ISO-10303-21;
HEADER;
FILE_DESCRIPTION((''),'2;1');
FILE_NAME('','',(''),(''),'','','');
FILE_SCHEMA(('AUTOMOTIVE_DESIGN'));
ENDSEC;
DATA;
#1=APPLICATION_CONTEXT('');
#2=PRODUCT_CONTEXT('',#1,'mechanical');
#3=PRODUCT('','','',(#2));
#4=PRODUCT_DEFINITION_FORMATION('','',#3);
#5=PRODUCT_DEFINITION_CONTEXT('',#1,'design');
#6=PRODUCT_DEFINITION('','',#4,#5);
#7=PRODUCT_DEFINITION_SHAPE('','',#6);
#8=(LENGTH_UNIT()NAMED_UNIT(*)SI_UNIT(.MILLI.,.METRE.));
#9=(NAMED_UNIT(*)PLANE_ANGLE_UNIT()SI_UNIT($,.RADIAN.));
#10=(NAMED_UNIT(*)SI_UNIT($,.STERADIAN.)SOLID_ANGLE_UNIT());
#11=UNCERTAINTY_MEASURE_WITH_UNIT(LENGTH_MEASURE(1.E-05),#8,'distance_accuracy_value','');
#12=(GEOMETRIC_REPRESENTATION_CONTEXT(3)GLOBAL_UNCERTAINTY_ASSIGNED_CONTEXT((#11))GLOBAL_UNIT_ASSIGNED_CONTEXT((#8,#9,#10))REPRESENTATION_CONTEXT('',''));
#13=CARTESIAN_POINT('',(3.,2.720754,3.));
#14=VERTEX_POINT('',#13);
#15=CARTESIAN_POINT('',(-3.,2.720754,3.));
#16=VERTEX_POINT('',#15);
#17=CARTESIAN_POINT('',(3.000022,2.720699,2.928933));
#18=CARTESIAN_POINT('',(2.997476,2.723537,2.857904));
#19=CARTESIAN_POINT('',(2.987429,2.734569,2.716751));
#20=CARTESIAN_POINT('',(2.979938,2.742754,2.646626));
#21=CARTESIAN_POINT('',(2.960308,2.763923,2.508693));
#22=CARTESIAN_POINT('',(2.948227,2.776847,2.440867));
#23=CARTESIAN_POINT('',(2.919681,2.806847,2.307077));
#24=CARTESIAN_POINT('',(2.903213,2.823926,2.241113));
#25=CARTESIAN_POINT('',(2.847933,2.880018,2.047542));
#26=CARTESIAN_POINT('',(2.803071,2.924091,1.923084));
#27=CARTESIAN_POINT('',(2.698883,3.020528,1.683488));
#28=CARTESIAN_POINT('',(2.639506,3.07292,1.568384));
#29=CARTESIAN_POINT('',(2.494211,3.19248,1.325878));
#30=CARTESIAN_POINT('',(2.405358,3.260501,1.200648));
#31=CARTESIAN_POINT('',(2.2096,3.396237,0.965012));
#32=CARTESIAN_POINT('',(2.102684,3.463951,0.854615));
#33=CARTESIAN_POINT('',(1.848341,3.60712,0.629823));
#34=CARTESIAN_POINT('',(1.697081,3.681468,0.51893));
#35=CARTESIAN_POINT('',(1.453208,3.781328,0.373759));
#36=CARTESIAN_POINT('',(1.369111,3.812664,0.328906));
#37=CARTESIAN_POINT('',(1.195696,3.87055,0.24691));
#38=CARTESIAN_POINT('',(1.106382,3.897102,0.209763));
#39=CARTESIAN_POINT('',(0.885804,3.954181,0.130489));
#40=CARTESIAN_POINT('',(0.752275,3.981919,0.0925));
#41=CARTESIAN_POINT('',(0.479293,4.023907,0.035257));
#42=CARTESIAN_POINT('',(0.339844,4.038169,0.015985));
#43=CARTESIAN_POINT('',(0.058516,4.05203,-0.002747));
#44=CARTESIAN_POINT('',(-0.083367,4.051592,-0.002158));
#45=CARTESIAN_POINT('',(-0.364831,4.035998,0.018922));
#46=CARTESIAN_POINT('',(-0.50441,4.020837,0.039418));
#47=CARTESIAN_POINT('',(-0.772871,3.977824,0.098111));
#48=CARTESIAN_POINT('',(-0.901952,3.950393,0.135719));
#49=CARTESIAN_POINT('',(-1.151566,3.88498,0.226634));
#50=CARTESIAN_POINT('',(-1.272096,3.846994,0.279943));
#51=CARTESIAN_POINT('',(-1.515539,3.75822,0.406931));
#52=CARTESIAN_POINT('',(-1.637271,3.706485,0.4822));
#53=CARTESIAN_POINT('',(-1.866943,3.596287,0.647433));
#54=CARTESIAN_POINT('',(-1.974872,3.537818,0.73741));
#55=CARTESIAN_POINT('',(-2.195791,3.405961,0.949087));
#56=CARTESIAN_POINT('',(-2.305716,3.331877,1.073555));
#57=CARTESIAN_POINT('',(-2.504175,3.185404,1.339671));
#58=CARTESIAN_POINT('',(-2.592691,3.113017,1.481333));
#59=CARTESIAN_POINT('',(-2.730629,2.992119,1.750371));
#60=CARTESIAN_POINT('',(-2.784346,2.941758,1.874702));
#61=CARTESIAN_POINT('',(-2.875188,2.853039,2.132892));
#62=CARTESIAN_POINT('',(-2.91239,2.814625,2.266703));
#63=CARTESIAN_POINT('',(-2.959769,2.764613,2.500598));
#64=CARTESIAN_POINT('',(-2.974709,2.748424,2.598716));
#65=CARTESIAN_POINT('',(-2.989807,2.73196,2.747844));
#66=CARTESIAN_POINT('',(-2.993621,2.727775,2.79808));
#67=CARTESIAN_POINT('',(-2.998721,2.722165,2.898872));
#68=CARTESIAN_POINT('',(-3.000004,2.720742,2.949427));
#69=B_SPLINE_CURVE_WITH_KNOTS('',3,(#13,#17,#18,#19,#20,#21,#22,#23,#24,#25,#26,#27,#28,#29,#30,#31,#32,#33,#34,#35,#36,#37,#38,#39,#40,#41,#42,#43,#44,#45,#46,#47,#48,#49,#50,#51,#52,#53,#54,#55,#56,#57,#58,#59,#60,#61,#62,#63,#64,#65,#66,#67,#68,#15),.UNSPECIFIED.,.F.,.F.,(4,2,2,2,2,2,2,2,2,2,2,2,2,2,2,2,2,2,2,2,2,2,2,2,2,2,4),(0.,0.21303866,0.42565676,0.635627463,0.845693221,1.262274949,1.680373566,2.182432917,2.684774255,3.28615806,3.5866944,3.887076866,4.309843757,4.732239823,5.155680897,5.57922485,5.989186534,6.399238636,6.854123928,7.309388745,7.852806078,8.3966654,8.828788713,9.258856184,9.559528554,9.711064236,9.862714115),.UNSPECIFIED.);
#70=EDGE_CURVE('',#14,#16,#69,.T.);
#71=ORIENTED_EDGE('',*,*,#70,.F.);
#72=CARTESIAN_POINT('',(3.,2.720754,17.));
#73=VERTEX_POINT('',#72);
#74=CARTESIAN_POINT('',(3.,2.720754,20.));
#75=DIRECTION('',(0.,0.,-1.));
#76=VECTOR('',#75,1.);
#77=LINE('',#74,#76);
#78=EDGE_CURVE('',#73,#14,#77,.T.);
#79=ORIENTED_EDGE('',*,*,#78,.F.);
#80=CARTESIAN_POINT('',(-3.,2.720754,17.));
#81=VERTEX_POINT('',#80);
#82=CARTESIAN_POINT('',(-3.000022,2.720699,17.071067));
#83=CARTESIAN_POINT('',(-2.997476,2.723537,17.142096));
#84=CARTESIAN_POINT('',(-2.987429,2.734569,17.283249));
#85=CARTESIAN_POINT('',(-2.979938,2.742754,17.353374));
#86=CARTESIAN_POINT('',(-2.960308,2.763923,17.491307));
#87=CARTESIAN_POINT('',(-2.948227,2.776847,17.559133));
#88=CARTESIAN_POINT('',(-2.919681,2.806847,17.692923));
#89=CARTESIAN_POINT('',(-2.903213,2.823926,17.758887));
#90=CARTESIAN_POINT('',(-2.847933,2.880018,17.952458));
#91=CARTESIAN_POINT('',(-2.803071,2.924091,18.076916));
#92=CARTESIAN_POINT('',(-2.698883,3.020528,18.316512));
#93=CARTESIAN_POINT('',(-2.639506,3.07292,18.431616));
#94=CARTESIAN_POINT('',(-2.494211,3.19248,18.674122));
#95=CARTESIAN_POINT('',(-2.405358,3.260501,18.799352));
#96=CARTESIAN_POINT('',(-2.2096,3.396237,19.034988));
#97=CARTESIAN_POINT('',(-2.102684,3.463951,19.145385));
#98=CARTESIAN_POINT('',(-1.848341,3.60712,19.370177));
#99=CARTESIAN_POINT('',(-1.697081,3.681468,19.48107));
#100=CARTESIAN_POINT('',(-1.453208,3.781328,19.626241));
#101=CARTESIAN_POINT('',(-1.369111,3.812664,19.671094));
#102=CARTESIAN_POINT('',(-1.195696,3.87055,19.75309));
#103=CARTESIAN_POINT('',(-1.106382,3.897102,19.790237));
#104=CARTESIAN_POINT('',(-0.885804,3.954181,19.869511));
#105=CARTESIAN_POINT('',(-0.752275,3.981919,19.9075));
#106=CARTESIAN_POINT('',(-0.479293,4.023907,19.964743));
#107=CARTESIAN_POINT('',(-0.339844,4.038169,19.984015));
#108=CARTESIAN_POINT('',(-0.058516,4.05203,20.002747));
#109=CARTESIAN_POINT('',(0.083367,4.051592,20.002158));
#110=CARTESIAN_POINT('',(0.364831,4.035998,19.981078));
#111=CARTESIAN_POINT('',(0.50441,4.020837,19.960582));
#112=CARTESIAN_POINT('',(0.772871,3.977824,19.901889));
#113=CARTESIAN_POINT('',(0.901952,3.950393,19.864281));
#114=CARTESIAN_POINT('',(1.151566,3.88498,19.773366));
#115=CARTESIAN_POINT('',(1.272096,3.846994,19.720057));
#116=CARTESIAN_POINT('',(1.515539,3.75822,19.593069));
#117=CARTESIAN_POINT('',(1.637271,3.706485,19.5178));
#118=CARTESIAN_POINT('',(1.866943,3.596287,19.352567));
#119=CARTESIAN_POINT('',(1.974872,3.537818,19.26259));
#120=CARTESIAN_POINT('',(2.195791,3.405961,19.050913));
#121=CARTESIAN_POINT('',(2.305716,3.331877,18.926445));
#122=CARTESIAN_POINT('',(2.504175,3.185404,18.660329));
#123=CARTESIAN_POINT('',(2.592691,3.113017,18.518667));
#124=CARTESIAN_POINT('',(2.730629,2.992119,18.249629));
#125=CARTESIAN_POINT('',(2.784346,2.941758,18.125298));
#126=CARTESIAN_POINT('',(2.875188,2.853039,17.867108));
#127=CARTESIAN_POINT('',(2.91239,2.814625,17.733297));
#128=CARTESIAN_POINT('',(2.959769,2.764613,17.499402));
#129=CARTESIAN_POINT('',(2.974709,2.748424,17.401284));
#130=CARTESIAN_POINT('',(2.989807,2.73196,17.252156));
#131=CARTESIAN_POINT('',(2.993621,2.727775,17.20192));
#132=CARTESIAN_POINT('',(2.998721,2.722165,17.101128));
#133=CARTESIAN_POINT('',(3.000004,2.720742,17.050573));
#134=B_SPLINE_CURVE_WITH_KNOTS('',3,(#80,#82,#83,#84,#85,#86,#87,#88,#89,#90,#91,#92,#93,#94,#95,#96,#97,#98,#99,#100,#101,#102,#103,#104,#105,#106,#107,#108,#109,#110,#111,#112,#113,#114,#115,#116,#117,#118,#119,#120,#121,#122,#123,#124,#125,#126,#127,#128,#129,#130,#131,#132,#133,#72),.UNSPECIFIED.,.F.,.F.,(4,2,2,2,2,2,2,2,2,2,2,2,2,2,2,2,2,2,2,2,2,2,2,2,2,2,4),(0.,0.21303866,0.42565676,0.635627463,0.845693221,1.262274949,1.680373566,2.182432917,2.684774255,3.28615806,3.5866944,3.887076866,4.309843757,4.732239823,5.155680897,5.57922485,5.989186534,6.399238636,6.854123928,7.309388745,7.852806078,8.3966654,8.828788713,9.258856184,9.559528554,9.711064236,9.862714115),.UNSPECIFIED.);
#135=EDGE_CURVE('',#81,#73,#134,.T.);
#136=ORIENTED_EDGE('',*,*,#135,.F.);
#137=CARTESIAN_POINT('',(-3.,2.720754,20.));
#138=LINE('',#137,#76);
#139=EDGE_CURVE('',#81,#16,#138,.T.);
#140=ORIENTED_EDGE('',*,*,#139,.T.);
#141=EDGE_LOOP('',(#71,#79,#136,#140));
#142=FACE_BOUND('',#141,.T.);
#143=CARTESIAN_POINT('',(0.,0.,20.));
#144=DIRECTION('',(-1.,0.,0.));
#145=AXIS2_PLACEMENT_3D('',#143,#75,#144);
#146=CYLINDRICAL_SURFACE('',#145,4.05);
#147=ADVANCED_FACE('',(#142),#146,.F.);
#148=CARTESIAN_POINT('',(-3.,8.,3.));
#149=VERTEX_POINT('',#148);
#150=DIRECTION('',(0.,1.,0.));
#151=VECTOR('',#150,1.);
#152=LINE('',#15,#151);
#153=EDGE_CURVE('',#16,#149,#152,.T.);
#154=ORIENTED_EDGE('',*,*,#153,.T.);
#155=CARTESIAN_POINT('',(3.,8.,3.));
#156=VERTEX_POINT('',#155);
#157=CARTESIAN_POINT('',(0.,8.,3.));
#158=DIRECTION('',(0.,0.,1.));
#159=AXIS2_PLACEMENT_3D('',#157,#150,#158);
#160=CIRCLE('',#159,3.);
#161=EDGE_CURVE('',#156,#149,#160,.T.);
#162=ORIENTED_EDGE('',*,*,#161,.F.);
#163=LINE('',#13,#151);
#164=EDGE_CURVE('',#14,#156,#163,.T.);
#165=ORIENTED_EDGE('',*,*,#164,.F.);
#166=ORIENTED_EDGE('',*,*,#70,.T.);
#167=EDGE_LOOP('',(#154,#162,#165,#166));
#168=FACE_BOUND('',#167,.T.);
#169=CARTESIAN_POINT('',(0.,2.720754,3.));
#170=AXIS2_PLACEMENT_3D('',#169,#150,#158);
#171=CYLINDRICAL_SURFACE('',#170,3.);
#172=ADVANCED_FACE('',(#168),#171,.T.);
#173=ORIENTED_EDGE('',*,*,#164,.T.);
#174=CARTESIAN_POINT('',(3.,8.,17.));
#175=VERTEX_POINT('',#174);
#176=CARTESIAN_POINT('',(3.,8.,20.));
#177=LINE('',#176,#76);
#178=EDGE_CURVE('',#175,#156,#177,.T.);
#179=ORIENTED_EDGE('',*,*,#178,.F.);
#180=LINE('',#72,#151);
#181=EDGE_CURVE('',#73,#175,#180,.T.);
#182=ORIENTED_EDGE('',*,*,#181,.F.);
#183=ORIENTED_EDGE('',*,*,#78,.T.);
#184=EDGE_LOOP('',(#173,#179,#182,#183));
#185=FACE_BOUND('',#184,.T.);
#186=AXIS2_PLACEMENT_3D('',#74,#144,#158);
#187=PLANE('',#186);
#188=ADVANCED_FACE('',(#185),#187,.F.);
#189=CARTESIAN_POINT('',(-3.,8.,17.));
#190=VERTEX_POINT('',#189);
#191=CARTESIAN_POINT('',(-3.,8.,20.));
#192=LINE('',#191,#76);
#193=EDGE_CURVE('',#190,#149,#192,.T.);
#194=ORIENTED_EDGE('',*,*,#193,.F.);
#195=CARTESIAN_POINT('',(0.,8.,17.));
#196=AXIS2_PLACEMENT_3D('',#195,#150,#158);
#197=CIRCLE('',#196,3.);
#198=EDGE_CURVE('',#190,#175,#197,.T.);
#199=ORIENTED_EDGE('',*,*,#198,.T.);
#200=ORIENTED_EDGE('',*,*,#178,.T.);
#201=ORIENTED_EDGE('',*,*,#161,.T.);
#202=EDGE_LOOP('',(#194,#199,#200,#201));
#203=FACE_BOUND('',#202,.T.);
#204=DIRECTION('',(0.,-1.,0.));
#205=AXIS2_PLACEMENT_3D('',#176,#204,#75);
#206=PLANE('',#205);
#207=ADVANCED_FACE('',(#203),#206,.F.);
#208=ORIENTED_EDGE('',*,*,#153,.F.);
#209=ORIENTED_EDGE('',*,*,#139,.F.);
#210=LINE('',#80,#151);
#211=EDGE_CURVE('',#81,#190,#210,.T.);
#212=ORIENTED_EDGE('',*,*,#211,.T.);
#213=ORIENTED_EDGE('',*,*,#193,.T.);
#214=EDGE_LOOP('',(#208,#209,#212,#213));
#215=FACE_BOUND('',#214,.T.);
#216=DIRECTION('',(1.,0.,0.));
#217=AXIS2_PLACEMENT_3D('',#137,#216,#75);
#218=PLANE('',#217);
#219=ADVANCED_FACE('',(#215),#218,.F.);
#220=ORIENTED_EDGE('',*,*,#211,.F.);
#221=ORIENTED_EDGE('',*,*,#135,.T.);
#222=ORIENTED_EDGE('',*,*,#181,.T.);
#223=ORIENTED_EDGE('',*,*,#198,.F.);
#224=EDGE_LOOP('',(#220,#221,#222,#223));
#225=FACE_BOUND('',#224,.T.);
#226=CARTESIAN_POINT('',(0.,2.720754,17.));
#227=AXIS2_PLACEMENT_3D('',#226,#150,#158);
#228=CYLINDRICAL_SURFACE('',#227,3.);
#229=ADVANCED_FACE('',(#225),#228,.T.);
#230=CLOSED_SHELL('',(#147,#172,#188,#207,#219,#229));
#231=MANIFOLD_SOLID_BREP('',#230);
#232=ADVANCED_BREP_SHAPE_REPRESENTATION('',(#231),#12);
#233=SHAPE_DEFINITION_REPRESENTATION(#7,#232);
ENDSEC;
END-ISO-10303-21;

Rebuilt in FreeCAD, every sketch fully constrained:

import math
import FreeCAD as App
import Part
import Sketcher
from FreeCAD import Vector
Q = App.Units.Quantity

doc = App.newDocument("Part")
body = doc.addObject("PartDesign::Body", "Body")

# Sketch on XY plane
sketch1 = body.newObject("Sketcher::SketchObject", "Sketch")
sketch1.AttachmentSupport = (doc.getObject("XY_Plane"), [""])
sketch1.MapMode = "FlatFace"
sketch1.addGeometry([
    Part.LineSegment(Vector(3, 2.7, 0), Vector(3, 8, 0)),
    Part.LineSegment(Vector(3, 8, 0), Vector(-3, 8, 0)),
    Part.LineSegment(Vector(-3, 8, 0), Vector(-3, 2.7, 0)),
    Part.ArcOfCircle(Part.Circle(Vector(0, 0, 0), Vector(0, 0, 1), 4), math.radians(42), math.radians(138)),
], False)
sketch1.addConstraint([
    Sketcher.Constraint("Coincident", 0, 2, 1, 1),
    Sketcher.Constraint("Coincident", 1, 2, 2, 1),
    Sketcher.Constraint("Coincident", 2, 2, 3, 2),
    Sketcher.Constraint("Coincident", 3, 1, 0, 1),
    Sketcher.Constraint("Vertical", 0),
    Sketcher.Constraint("Horizontal", 1),
    Sketcher.Constraint("Vertical", 2),
    Sketcher.Constraint("Coincident", 3, 3, -1, 1),
    Sketcher.Constraint("Horizontal", 2, 2, 3, 1),
    Sketcher.Constraint("DistanceX", 1, 2, 1, 1, Q("6 mm")),
    Sketcher.Constraint("Radius", 3, Q("4.05 mm")),
    Sketcher.Constraint("DistanceY", -1, 1, 0, 2, Q("8 mm")),
])
pad1 = body.newObject("PartDesign::Pad", "Pad")
pad1.Profile = sketch1
pad1.Length = 20

# Sketch on XZ plane
sketch2 = body.newObject("Sketcher::SketchObject", "Sketch001")
sketch2.AttachmentSupport = (doc.getObject("XZ_Plane"), [""])
sketch2.MapMode = "FlatFace"
sketch2.AttachmentOffset = App.Placement(Vector(0, 0, -8), App.Rotation())
sketch2.addGeometry([
    Part.LineSegment(Vector(-6.2, -3.2, 0), Vector(-6.2, 23.2, 0)),  # 0
    Part.LineSegment(Vector(-6.2, 23.2, 0), Vector(6.2, 23.2, 0)),  # 1
    Part.LineSegment(Vector(6.2, 23.2, 0), Vector(6.2, -3.2, 0)),  # 2
    Part.LineSegment(Vector(6.2, -3.2, 0), Vector(-6.2, -3.2, 0)),  # 3
    Part.LineSegment(Vector(-3, 17, 0), Vector(-3, 3, 0)),  # 4
    Part.ArcOfCircle(Part.Circle(Vector(0, 3, 0), Vector(0, 0, 1), 3), math.radians(180), math.radians(360)),  # 5
    Part.LineSegment(Vector(3, 3, 0), Vector(3, 17, 0)),  # 6
    Part.ArcOfCircle(Part.Circle(Vector(0, 17, 0), Vector(0, 0, 1), 3), math.radians(0), math.radians(180)),  # 7
], False)
sketch2.addConstraint([
    Sketcher.Constraint("Coincident", 0, 2, 1, 1),
    Sketcher.Constraint("Coincident", 1, 2, 2, 1),
    Sketcher.Constraint("Coincident", 2, 2, 3, 1),
    Sketcher.Constraint("Coincident", 3, 2, 0, 1),
    Sketcher.Constraint("Tangent", 4, 2, 5, 1),
    Sketcher.Constraint("Tangent", 5, 2, 6, 1),
    Sketcher.Constraint("Tangent", 6, 2, 7, 1),
    Sketcher.Constraint("Tangent", 7, 2, 4, 1),
    Sketcher.Constraint("Vertical", 0),
    Sketcher.Constraint("Horizontal", 1),
    Sketcher.Constraint("Vertical", 2),
    Sketcher.Constraint("Horizontal", 3),
    Sketcher.Constraint("Vertical", 4),
    Sketcher.Constraint("Vertical", 6),
    Sketcher.Constraint("PointOnObject", 5, 3, -2),
    Sketcher.Constraint("Radius", 5, Q("3 mm")),
    Sketcher.Constraint("DistanceY", 4, 2, 4, 1, Q("14 mm")),
    Sketcher.Constraint("DistanceY", -1, 1, 5, 3, Q("3 mm")),
    Sketcher.Constraint("DistanceX", 1, 1, 1, 2, Q("12.308 mm")),
    Sketcher.Constraint("DistanceY", 0, 1, 0, 2, Q("26.308 mm")),
    Sketcher.Constraint("DistanceX", 0, 2, -1, 1, Q("6.154 mm")),
    Sketcher.Constraint("DistanceY", -1, 1, 0, 2, Q("23.154 mm")),
])
pocket1 = body.newObject("PartDesign::Pocket", "Pocket")
pocket1.Profile = sketch2
pocket1.Type = "ThroughAll"
pocket1.Reversed = True

doc.recompute()
